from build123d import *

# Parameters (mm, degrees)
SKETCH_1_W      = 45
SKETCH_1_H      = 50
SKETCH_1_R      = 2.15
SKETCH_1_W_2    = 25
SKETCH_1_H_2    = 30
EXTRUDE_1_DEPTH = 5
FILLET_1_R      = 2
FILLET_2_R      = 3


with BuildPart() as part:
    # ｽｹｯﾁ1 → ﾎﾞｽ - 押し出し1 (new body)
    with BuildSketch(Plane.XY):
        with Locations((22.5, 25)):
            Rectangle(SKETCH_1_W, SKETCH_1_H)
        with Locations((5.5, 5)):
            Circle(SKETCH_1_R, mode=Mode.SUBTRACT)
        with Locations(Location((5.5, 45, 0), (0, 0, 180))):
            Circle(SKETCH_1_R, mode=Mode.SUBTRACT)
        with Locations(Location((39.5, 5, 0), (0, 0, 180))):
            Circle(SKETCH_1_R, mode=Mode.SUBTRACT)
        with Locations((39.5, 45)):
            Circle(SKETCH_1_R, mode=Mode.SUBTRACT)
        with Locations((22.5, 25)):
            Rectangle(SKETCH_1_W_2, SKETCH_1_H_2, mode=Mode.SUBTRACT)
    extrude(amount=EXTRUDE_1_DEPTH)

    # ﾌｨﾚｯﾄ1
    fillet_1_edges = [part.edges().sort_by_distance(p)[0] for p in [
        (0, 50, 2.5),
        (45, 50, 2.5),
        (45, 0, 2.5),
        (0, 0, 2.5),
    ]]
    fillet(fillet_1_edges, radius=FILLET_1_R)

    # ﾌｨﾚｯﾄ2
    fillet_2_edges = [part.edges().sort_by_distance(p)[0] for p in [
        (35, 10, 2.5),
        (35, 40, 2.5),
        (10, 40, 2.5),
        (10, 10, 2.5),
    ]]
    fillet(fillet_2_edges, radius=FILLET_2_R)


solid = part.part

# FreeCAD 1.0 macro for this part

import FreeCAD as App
import Part
import Sketcher

V = App.Vector
Q = App.Units.Quantity


def edges_at(feature, points):
    """Names of the edges that pass closest to the given points."""
    edges = feature.Shape.Edges
    near = lambda p: min(range(len(edges)), key=lambda i: edges[i].distToShape(Part.Vertex(*p))[0])
    return sorted({f"Edge{near(p) + 1}" for p in points})

doc = App.newDocument("Part")
body = doc.addObject("PartDesign::Body", "Body")

sketch1 = body.newObject("Sketcher::SketchObject", "Sketch")
sketch1.AttachmentSupport = (doc.getObject("XY_Plane"), [""])
sketch1.MapMode = "FlatFace"
sketch1.addGeometry([
    Part.LineSegment(V(0, 50, 0), V(0, 0, 0)),
    Part.LineSegment(V(0, 0, 0), V(45, 0, 0)),
    Part.LineSegment(V(45, 0, 0), V(45, 50, 0)),
    Part.LineSegment(V(45, 50, 0), V(0, 50, 0)),
    Part.Circle(V(5.5, 5, 0), V(0, 0, 1), 2.1),
    Part.Circle(V(39.5, 5, 0), V(0, 0, 1), 2.1),
    Part.Circle(V(5.5, 45, 0), V(0, 0, 1), 2.1),
    Part.LineSegment(V(35, 10, 0), V(10, 10, 0)),
    Part.LineSegment(V(10, 10, 0), V(10, 40, 0)),
    Part.LineSegment(V(10, 40, 0), V(35, 40, 0)),
    Part.LineSegment(V(35, 40, 0), V(35, 10, 0)),
    Part.Circle(V(39.5, 45, 0), V(0, 0, 1), 2.1),
], False)
sketch1.addConstraint([
    Sketcher.Constraint("Coincident", 0, 2, 1, 1),
    Sketcher.Constraint("Coincident", 1, 2, 2, 1),
    Sketcher.Constraint("Coincident", 2, 2, 3, 1),
    Sketcher.Constraint("Coincident", 3, 2, 0, 1),
    Sketcher.Constraint("Coincident", 7, 2, 8, 1),
    Sketcher.Constraint("Coincident", 8, 2, 9, 1),
    Sketcher.Constraint("Coincident", 9, 2, 10, 1),
    Sketcher.Constraint("Coincident", 10, 2, 7, 1),
    Sketcher.Constraint("Vertical", 0),
    Sketcher.Constraint("Horizontal", 1),
    Sketcher.Constraint("Vertical", 2),
    Sketcher.Constraint("Horizontal", 3),
    Sketcher.Constraint("Horizontal", 7),
    Sketcher.Constraint("Vertical", 8),
    Sketcher.Constraint("Horizontal", 9),
    Sketcher.Constraint("Vertical", 10),
    Sketcher.Constraint("Coincident", 0, 2, -1, 1),
    Sketcher.Constraint("Equal", 4, 5),
    Sketcher.Constraint("Equal", 5, 6),
    Sketcher.Constraint("Equal", 6, 11),
    Sketcher.Constraint("Horizontal", 4, 3, 5, 3),
    Sketcher.Constraint("Horizontal", 6, 3, 11, 3),
    Sketcher.Constraint("Vertical", 4, 3, 6, 3),
    Sketcher.Constraint("Vertical", 5, 3, 11, 3),
    Sketcher.Constraint("Diameter", 4, Q("4.3 mm")),
    Sketcher.Constraint("DistanceX", 1, 1, 1, 2, Q("45 mm")),
    Sketcher.Constraint("DistanceX", 7, 2, 7, 1, Q("25 mm")),
    Sketcher.Constraint("DistanceY", 0, 2, 0, 1, Q("50 mm")),
    Sketcher.Constraint("DistanceY", 8, 1, 8, 2, Q("30 mm")),
    Sketcher.Constraint("DistanceY", -1, 1, 4, 3, Q("5 mm")),
    Sketcher.Constraint("DistanceY", -1, 1, 6, 3, Q("45 mm")),
    Sketcher.Constraint("DistanceX", -1, 1, 7, 2, Q("10 mm")),
    Sketcher.Constraint("DistanceY", -1, 1, 7, 2, Q("10 mm")),
    Sketcher.Constraint("DistanceX", 4, 3, 5, 3, Q("34 mm")),
    Sketcher.Constraint("DistanceX", -1, 1, 4, 3, Q("5.5 mm")),
])
pad1 = body.newObject("PartDesign::Pad", "Pad")
pad1.Profile = sketch1
pad1.Length = 5
doc.recompute()

fillet = body.newObject("PartDesign::Fillet", "Fillet")
fillet.Base = (pad1, edges_at(pad1, [
    (0, 50, 2.5),
    (45, 50, 2.5),
    (45, 0, 2.5),
    (0, 0, 2.5),
]))
fillet.Radius = 2
doc.recompute()

fillet2 = body.newObject("PartDesign::Fillet", "Fillet001")
fillet2.Base = (fillet, edges_at(fillet, [
    (35, 10, 2.5),
    (35, 40, 2.5),
    (10, 40, 2.5),
    (10, 10, 2.5),
]))
fillet2.Radius = 3

doc.recompute()
